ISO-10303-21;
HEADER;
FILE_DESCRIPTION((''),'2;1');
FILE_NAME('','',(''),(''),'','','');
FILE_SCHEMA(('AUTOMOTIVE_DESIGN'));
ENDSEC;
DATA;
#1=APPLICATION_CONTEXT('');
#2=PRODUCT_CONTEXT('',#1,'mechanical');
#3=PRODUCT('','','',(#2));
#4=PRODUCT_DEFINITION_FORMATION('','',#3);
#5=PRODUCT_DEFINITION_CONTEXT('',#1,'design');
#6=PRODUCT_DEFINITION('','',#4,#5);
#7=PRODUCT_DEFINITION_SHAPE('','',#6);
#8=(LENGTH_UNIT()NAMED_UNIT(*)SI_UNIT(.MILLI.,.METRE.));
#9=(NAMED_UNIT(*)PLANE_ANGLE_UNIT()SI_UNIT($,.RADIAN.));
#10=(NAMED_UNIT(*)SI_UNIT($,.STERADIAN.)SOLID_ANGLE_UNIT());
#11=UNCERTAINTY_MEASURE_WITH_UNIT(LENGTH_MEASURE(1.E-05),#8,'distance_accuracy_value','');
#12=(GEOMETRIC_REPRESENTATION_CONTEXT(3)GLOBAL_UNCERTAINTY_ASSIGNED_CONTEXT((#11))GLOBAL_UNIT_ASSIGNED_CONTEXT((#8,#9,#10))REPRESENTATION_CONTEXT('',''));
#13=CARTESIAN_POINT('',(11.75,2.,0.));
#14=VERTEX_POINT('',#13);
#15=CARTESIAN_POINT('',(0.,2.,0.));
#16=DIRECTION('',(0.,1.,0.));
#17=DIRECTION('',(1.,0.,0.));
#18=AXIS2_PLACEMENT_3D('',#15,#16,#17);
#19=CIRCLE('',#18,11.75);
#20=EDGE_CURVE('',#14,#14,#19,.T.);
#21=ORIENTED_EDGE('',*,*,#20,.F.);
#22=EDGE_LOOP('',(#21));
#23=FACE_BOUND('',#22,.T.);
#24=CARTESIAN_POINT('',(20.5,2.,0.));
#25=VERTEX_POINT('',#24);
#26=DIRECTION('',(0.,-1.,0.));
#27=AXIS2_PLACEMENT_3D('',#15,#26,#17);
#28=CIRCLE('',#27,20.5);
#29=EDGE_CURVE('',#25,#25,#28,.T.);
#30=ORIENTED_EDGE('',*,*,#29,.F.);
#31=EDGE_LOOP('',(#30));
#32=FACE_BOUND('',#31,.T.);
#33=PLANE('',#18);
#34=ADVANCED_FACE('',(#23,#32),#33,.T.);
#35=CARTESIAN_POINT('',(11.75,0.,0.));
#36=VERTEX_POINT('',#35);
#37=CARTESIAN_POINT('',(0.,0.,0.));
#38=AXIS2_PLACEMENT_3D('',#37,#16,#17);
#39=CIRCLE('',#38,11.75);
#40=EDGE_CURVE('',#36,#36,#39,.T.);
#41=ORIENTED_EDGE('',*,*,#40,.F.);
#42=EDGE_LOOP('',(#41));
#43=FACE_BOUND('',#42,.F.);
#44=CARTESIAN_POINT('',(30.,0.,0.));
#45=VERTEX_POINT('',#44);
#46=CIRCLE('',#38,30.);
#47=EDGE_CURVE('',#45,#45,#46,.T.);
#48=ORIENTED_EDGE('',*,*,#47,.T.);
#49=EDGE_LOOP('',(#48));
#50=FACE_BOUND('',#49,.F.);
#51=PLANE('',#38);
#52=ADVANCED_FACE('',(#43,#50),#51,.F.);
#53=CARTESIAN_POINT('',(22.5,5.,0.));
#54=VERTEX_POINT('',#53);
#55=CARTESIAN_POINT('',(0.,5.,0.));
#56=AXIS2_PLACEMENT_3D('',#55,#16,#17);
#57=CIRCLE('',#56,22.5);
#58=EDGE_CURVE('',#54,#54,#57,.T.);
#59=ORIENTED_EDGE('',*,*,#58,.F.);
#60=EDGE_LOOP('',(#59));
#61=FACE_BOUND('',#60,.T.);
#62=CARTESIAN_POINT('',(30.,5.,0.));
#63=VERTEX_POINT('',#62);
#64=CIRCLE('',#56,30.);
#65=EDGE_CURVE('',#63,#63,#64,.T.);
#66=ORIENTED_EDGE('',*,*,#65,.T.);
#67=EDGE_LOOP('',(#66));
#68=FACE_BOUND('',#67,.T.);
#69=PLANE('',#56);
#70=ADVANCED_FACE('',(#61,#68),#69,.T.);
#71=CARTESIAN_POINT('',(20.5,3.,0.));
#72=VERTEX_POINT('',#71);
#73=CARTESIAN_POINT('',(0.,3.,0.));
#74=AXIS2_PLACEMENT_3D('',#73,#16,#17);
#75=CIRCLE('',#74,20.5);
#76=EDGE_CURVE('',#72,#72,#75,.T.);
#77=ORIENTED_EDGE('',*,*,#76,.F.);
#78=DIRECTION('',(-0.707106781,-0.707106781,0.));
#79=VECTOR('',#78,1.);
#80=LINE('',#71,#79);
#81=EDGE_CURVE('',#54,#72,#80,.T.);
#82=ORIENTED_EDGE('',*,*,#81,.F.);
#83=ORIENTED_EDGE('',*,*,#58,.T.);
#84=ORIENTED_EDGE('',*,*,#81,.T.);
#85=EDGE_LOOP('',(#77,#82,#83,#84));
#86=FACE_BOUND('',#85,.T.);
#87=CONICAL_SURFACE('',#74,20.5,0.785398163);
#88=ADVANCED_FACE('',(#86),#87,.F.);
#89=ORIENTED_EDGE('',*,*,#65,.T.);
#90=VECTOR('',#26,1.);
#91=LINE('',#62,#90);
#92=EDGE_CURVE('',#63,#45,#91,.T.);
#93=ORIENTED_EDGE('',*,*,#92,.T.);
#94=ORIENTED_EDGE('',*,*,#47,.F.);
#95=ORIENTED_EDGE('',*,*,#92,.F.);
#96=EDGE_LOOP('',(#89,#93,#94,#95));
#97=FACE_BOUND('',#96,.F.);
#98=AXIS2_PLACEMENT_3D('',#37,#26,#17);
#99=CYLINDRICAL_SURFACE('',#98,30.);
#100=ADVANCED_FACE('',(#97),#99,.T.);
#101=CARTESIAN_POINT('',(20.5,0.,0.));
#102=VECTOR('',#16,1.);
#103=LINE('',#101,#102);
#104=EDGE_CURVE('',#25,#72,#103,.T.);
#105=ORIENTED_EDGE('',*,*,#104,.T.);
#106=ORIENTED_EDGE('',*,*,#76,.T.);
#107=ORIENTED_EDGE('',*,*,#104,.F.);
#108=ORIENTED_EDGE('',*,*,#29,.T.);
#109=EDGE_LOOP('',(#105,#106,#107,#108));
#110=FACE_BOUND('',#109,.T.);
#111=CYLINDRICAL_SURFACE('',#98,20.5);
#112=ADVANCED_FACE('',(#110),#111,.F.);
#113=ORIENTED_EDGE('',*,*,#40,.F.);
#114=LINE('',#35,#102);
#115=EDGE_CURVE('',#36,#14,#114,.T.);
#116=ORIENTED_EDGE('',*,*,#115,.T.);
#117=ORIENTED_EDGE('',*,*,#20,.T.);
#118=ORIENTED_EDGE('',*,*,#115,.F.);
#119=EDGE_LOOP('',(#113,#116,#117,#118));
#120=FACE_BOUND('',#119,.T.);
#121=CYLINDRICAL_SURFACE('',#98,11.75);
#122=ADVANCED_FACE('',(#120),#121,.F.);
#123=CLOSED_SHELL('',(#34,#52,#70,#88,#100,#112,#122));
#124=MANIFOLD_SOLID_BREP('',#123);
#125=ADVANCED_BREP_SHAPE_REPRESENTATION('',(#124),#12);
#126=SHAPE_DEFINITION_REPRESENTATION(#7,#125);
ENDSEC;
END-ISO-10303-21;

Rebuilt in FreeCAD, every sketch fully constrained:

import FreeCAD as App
import Part
import Sketcher

V = App.Vector
Q = App.Units.Quantity


def edges_at(feature, points):
    """Names of the edges that pass closest to the given points."""
    edges = feature.Shape.Edges
    near = lambda p: min(range(len(edges)), key=lambda i: edges[i].distToShape(Part.Vertex(*p))[0])
    return sorted({f"Edge{near(p) + 1}" for p in points})

doc = App.newDocument("Part")
body = doc.addObject("PartDesign::Body", "Body")

sketch1 = body.newObject("Sketcher::SketchObject", "Sketch")
sketch1.AttachmentSupport = (doc.getObject("XZ_Plane"), [""])
sketch1.MapMode = "FlatFace"
sketch1.addGeometry(Part.Circle(V(0, 0, 0), V(0, 0, 1), 30), False)
sketch1.addGeometry(Part.Circle(V(0, 0, 0), V(0, 0, 1), 12), False)
sketch1.addConstraint(Sketcher.Constraint("Coincident", 0, 3, -1, 1))
sketch1.addConstraint(Sketcher.Constraint("Coincident", 1, 3, -1, 1))
sketch1.addConstraint(Sketcher.Constraint("Diameter", 0, Q("60 mm")))
sketch1.addConstraint(Sketcher.Constraint("Diameter", 1, Q("23.5 mm")))
pad1 = body.newObject("PartDesign::Pad", "Pad")
pad1.Profile = sketch1
pad1.Length = 2
pad1.Reversed = True

sketch2 = body.newObject("Sketcher::SketchObject", "Sketch001")
sketch2.AttachmentSupport = (doc.getObject("XZ_Plane"), [""])
sketch2.MapMode = "FlatFace"
sketch2.addGeometry(Part.Circle(V(0, 0, 0), V(0, 0, 1), 30), False)
sketch2.addGeometry(Part.Circle(V(0, 0, 0), V(0, 0, 1), 20), False)
sketch2.addConstraint(Sketcher.Constraint("Coincident", 0, 3, -1, 1))
sketch2.addConstraint(Sketcher.Constraint("Coincident", 1, 3, -1, 1))
sketch2.addConstraint(Sketcher.Constraint("Diameter", 0, Q("60 mm")))
sketch2.addConstraint(Sketcher.Constraint("Diameter", 1, Q("41 mm")))
pad2 = body.newObject("PartDesign::Pad", "Pad001")
pad2.Profile = sketch2
pad2.Length = 5
pad2.Reversed = True
doc.recompute()

chamfer = body.newObject("PartDesign::Chamfer", "Chamfer")
chamfer.Base = (pad2, edges_at(pad2, [(-19.113, 5, -7.413)]))
chamfer.Size = 2

doc.recompute()
